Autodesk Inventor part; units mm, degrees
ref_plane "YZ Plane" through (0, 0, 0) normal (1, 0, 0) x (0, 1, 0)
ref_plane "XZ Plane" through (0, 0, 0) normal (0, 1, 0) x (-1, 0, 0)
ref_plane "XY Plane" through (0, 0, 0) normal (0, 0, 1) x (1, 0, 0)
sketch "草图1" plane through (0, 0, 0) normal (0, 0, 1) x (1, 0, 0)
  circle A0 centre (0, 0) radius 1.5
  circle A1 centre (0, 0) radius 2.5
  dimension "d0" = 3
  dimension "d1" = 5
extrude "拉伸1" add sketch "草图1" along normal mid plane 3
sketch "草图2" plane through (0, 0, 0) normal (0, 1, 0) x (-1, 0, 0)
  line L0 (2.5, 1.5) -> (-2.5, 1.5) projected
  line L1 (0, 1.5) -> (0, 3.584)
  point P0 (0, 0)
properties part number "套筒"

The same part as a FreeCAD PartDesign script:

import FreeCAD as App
import Part
import Sketcher

V = App.Vector

doc = App.newDocument("Part")
body = doc.addObject("PartDesign::Body", "Body")

sketch1 = body.newObject("Sketcher::SketchObject", "Sketch")
sketch1.AttachmentSupport = (doc.getObject("XY_Plane"), [""])
sketch1.MapMode = "FlatFace"
sketch1.addGeometry(Part.Circle(V(0, 0, 0), V(0, 0, 1), 2.5), False)
sketch1.addGeometry(Part.Circle(V(0, 0, 0), V(0, 0, 1), 1.5), False)
sketch1.addConstraint(Sketcher.Constraint("Coincident", 0, 3, -1, 1))
sketch1.addConstraint(Sketcher.Constraint("Coincident", 1, 3, -1, 1))
sketch1.addConstraint(Sketcher.Constraint("Diameter", 0, 5.0))
sketch1.addConstraint(Sketcher.Constraint("Diameter", 1, 3.0))
pad1 = body.newObject("PartDesign::Pad", "Pad")
pad1.Profile = sketch1
pad1.Length = 3
pad1.Midplane = True

doc.recompute()
